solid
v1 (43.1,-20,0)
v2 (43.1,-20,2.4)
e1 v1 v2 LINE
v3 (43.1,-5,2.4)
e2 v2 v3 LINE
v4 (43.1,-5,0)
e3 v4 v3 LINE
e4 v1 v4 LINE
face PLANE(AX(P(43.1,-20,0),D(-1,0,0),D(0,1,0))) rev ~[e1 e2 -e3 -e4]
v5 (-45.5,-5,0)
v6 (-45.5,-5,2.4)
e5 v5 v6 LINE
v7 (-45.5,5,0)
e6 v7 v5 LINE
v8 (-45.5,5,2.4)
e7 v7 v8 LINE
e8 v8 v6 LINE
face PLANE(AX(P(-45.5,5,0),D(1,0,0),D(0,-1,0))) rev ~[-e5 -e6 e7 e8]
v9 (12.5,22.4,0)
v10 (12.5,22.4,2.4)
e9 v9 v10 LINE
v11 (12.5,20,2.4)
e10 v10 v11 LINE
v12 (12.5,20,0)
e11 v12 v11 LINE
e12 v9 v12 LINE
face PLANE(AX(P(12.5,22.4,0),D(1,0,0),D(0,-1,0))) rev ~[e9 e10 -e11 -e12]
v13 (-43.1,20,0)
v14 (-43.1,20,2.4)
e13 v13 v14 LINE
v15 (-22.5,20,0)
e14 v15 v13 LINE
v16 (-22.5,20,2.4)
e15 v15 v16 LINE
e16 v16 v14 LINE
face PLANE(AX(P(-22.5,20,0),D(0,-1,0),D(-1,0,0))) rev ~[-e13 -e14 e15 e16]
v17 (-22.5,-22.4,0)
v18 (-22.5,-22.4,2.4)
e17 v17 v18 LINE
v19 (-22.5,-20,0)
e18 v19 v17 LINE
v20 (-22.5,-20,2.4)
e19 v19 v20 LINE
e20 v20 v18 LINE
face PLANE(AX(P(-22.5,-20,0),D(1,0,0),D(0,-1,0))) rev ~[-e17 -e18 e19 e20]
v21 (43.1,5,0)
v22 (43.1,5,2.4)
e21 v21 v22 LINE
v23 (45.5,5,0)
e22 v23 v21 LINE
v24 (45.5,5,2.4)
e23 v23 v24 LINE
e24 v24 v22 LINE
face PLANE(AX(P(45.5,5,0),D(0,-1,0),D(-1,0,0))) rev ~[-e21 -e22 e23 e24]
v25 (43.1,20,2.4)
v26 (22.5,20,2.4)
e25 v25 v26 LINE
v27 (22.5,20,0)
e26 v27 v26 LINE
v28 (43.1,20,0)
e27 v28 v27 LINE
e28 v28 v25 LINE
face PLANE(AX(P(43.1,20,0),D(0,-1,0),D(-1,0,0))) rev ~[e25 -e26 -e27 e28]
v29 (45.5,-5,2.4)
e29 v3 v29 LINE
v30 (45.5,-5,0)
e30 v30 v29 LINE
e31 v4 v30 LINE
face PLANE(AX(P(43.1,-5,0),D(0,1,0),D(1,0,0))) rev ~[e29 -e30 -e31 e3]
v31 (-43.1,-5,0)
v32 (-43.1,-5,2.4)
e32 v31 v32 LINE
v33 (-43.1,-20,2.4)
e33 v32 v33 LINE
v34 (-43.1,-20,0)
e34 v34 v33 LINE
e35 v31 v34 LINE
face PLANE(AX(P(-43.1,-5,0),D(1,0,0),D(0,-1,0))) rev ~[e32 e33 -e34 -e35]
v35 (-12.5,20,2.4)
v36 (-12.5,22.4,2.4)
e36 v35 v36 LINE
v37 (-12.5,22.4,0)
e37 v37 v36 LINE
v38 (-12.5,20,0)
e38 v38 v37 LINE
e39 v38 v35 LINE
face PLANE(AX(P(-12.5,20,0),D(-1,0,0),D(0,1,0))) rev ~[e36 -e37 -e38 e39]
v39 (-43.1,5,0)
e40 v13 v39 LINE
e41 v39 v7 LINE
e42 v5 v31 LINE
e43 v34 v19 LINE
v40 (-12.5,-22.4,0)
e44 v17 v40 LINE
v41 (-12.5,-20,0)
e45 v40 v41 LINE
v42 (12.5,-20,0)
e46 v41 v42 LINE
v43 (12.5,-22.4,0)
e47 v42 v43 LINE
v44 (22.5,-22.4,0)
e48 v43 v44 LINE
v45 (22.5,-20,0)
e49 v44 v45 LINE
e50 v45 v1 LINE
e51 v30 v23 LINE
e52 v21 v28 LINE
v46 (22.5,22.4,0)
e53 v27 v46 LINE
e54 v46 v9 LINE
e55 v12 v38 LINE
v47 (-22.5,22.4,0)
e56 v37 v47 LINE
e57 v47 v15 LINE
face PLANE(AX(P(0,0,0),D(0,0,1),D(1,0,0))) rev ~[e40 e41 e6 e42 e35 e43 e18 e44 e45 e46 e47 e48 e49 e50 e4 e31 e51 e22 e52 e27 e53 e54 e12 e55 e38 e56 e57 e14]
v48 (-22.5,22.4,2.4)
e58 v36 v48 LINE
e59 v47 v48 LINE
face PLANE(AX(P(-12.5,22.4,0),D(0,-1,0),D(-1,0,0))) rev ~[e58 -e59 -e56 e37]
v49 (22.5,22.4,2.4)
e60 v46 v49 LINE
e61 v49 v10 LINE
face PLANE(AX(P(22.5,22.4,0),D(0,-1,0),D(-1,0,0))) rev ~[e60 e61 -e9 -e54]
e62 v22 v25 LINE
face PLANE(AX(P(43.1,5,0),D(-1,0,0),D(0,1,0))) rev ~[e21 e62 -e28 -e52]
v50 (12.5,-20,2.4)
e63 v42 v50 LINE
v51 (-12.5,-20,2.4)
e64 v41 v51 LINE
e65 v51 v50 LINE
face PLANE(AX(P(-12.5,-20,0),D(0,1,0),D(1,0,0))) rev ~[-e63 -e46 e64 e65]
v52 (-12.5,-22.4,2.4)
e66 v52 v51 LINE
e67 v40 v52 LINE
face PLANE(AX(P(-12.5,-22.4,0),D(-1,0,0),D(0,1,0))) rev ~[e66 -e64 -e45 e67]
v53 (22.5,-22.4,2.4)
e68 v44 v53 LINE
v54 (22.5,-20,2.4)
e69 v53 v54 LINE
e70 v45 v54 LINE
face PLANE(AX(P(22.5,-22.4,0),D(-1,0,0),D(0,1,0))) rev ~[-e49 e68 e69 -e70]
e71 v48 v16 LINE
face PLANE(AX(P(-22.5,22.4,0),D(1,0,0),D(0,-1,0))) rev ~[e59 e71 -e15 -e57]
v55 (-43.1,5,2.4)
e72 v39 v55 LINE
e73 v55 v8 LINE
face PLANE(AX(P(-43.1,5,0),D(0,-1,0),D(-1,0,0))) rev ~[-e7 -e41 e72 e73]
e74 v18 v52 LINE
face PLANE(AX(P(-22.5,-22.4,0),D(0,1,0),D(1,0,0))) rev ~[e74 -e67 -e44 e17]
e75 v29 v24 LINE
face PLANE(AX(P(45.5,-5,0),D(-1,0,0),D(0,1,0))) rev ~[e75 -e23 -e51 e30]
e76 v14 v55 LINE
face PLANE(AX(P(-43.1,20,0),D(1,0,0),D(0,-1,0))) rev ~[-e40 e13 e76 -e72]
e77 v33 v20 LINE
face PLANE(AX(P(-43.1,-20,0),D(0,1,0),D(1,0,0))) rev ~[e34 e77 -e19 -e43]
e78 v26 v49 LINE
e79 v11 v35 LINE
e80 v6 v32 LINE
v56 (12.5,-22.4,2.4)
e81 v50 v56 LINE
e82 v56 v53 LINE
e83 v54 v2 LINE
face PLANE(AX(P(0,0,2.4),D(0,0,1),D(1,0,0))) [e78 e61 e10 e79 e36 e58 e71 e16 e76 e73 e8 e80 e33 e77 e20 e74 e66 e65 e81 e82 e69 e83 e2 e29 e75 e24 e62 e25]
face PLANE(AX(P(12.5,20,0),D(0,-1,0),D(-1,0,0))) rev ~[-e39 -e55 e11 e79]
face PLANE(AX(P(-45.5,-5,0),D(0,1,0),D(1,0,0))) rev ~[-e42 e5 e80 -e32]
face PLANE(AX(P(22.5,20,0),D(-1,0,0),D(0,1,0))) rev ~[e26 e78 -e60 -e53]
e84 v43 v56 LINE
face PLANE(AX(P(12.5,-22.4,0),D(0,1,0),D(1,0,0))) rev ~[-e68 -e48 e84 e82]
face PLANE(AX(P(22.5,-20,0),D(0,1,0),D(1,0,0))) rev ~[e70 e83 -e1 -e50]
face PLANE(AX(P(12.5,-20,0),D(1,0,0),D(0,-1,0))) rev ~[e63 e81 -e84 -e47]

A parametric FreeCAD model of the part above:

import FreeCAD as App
import Part
import Sketcher

V = App.Vector
Q = App.Units.Quantity

doc = App.newDocument("Part")
body = doc.addObject("PartDesign::Body", "Body")

# Sketch on XY plane
sketch1 = body.newObject("Sketcher::SketchObject", "Sketch")
sketch1.AttachmentSupport = (doc.getObject("XY_Plane"), [""])
sketch1.MapMode = "FlatFace"
sketch1.addGeometry([
    Part.LineSegment(V(43.1, 5, 0), V(43.1, 20, 0)),  # 0
    Part.LineSegment(V(43.1, 20, 0), V(22.5, 20, 0)),  # 1
    Part.LineSegment(V(22.5, 20, 0), V(22.5, 22.4, 0)),  # 2
    Part.LineSegment(V(22.5, 22.4, 0), V(12.5, 22.4, 0)),  # 3
    Part.LineSegment(V(12.5, 22.4, 0), V(12.5, 20, 0)),  # 4
    Part.LineSegment(V(12.5, 20, 0), V(-12.5, 20, 0)),  # 5
    Part.LineSegment(V(-12.5, 20, 0), V(-12.5, 22.4, 0)),  # 6
    Part.LineSegment(V(-12.5, 22.4, 0), V(-22.5, 22.4, 0)),  # 7
    Part.LineSegment(V(-22.5, 22.4, 0), V(-22.5, 20, 0)),  # 8
    Part.LineSegment(V(-22.5, 20, 0), V(-43.1, 20, 0)),  # 9
    Part.LineSegment(V(-43.1, 20, 0), V(-43.1, 5, 0)),  # 10
    Part.LineSegment(V(-43.1, 5, 0), V(-45.5, 5, 0)),  # 11
    Part.LineSegment(V(-45.5, 5, 0), V(-45.5, -5, 0)),  # 12
    Part.LineSegment(V(-45.5, -5, 0), V(-43.1, -5, 0)),  # 13
    Part.LineSegment(V(-43.1, -5, 0), V(-43.1, -20, 0)),  # 14
    Part.LineSegment(V(-43.1, -20, 0), V(-22.5, -20, 0)),  # 15
    Part.LineSegment(V(-22.5, -20, 0), V(-22.5, -22.4, 0)),  # 16
    Part.LineSegment(V(-22.5, -22.4, 0), V(-12.5, -22.4, 0)),  # 17
    Part.LineSegment(V(-12.5, -22.4, 0), V(-12.5, -20, 0)),  # 18
    Part.LineSegment(V(-12.5, -20, 0), V(12.5, -20, 0)),  # 19
    Part.LineSegment(V(12.5, -20, 0), V(12.5, -22.4, 0)),  # 20
    Part.LineSegment(V(12.5, -22.4, 0), V(22.5, -22.4, 0)),  # 21
    Part.LineSegment(V(22.5, -22.4, 0), V(22.5, -20, 0)),  # 22
    Part.LineSegment(V(22.5, -20, 0), V(43.1, -20, 0)),  # 23
    Part.LineSegment(V(43.1, -20, 0), V(43.1, -5, 0)),  # 24
    Part.LineSegment(V(43.1, -5, 0), V(45.5, -5, 0)),  # 25
    Part.LineSegment(V(45.5, -5, 0), V(45.5, 5, 0)),  # 26
    Part.LineSegment(V(45.5, 5, 0), V(43.1, 5, 0)),  # 27
], False)
sketch1.addConstraint([
    Sketcher.Constraint("Coincident", 0, 2, 1, 1),
    Sketcher.Constraint("Coincident", 1, 2, 2, 1),
    Sketcher.Constraint("Coincident", 2, 2, 3, 1),
    Sketcher.Constraint("Coincident", 3, 2, 4, 1),
    Sketcher.Constraint("Coincident", 4, 2, 5, 1),
    Sketcher.Constraint("Coincident", 5, 2, 6, 1),
    Sketcher.Constraint("Coincident", 6, 2, 7, 1),
    Sketcher.Constraint("Coincident", 7, 2, 8, 1),
    Sketcher.Constraint("Coincident", 8, 2, 9, 1),
    Sketcher.Constraint("Coincident", 9, 2, 10, 1),
    Sketcher.Constraint("Coincident", 10, 2, 11, 1),
    Sketcher.Constraint("Coincident", 11, 2, 12, 1),
    Sketcher.Constraint("Coincident", 12, 2, 13, 1),
    Sketcher.Constraint("Coincident", 13, 2, 14, 1),
    Sketcher.Constraint("Coincident", 14, 2, 15, 1),
    Sketcher.Constraint("Coincident", 15, 2, 16, 1),
    Sketcher.Constraint("Coincident", 16, 2, 17, 1),
    Sketcher.Constraint("Coincident", 17, 2, 18, 1),
    Sketcher.Constraint("Coincident", 18, 2, 19, 1),
    Sketcher.Constraint("Coincident", 19, 2, 20, 1),
    Sketcher.Constraint("Coincident", 20, 2, 21, 1),
    Sketcher.Constraint("Coincident", 21, 2, 22, 1),
    Sketcher.Constraint("Coincident", 22, 2, 23, 1),
    Sketcher.Constraint("Coincident", 23, 2, 24, 1),
    Sketcher.Constraint("Coincident", 24, 2, 25, 1),
    Sketcher.Constraint("Coincident", 25, 2, 26, 1),
    Sketcher.Constraint("Coincident", 26, 2, 27, 1),
    Sketcher.Constraint("Coincident", 27, 2, 0, 1),
    Sketcher.Constraint("Vertical", 0),
    Sketcher.Constraint("Horizontal", 1),
    Sketcher.Constraint("Vertical", 2),
    Sketcher.Constraint("Horizontal", 3),
    Sketcher.Constraint("Vertical", 4),
    Sketcher.Constraint("Horizontal", 5),
    Sketcher.Constraint("Vertical", 6),
    Sketcher.Constraint("Horizontal", 7),
    Sketcher.Constraint("Vertical", 8),
    Sketcher.Constraint("Horizontal", 9),
    Sketcher.Constraint("Vertical", 10),
    Sketcher.Constraint("Horizontal", 11),
    Sketcher.Constraint("Vertical", 12),
    Sketcher.Constraint("Horizontal", 13),
    Sketcher.Constraint("Vertical", 14),
    Sketcher.Constraint("Horizontal", 15),
    Sketcher.Constraint("Vertical", 16),
    Sketcher.Constraint("Horizontal", 17),
    Sketcher.Constraint("Vertical", 18),
    Sketcher.Constraint("Horizontal", 19),
    Sketcher.Constraint("Vertical", 20),
    Sketcher.Constraint("Horizontal", 21),
    Sketcher.Constraint("Vertical", 22),
    Sketcher.Constraint("Horizontal", 23),
    Sketcher.Constraint("Vertical", 24),
    Sketcher.Constraint("Horizontal", 25),
    Sketcher.Constraint("Vertical", 26),
    Sketcher.Constraint("Horizontal", 27),
    Sketcher.Constraint("Symmetric", 0, 2, 14, 2, -1, 1),
    Sketcher.Constraint("Symmetric", 2, 2, 16, 2, -1, 1),
    Sketcher.Constraint("Symmetric", 4, 2, 18, 2, -1, 1),
    Sketcher.Constraint("Symmetric", 6, 2, 20, 2, -1, 1),
    Sketcher.Constraint("Symmetric", 8, 2, 22, 2, -1, 1),
    Sketcher.Constraint("Symmetric", 10, 2, 24, 2, -1, 1),
    Sketcher.Constraint("Symmetric", 12, 2, 26, 2, -1, 1),
    Sketcher.Constraint("Symmetric", 3, 2, 6, 2, -2),
    Sketcher.Constraint("Symmetric", 1, 2, 8, 2, -2),
    Sketcher.Constraint("Symmetric", 13, 2, 24, 2, -2),
    Sketcher.Constraint("Horizontal", 1, 2, 4, 2),
    Sketcher.Constraint("Equal", 27, 2),
    Sketcher.Constraint("Equal", 21, 12),
    Sketcher.Constraint("DistanceX", 3, 2, 3, 1, Q("10 mm")),
    Sketcher.Constraint("DistanceX", 5, 2, 5, 1, Q("25 mm")),
    Sketcher.Constraint("DistanceY", 0, 1, 0, 2, Q("15 mm")),
    Sketcher.Constraint("DistanceX", 1, 2, 1, 1, Q("20.6 mm")),
    Sketcher.Constraint("DistanceX", 11, 2, 11, 1, Q("2.4 mm")),
])
pad1 = body.newObject("PartDesign::Pad", "Pad")
pad1.Profile = sketch1
pad1.Length = 2.4

doc.recompute()
